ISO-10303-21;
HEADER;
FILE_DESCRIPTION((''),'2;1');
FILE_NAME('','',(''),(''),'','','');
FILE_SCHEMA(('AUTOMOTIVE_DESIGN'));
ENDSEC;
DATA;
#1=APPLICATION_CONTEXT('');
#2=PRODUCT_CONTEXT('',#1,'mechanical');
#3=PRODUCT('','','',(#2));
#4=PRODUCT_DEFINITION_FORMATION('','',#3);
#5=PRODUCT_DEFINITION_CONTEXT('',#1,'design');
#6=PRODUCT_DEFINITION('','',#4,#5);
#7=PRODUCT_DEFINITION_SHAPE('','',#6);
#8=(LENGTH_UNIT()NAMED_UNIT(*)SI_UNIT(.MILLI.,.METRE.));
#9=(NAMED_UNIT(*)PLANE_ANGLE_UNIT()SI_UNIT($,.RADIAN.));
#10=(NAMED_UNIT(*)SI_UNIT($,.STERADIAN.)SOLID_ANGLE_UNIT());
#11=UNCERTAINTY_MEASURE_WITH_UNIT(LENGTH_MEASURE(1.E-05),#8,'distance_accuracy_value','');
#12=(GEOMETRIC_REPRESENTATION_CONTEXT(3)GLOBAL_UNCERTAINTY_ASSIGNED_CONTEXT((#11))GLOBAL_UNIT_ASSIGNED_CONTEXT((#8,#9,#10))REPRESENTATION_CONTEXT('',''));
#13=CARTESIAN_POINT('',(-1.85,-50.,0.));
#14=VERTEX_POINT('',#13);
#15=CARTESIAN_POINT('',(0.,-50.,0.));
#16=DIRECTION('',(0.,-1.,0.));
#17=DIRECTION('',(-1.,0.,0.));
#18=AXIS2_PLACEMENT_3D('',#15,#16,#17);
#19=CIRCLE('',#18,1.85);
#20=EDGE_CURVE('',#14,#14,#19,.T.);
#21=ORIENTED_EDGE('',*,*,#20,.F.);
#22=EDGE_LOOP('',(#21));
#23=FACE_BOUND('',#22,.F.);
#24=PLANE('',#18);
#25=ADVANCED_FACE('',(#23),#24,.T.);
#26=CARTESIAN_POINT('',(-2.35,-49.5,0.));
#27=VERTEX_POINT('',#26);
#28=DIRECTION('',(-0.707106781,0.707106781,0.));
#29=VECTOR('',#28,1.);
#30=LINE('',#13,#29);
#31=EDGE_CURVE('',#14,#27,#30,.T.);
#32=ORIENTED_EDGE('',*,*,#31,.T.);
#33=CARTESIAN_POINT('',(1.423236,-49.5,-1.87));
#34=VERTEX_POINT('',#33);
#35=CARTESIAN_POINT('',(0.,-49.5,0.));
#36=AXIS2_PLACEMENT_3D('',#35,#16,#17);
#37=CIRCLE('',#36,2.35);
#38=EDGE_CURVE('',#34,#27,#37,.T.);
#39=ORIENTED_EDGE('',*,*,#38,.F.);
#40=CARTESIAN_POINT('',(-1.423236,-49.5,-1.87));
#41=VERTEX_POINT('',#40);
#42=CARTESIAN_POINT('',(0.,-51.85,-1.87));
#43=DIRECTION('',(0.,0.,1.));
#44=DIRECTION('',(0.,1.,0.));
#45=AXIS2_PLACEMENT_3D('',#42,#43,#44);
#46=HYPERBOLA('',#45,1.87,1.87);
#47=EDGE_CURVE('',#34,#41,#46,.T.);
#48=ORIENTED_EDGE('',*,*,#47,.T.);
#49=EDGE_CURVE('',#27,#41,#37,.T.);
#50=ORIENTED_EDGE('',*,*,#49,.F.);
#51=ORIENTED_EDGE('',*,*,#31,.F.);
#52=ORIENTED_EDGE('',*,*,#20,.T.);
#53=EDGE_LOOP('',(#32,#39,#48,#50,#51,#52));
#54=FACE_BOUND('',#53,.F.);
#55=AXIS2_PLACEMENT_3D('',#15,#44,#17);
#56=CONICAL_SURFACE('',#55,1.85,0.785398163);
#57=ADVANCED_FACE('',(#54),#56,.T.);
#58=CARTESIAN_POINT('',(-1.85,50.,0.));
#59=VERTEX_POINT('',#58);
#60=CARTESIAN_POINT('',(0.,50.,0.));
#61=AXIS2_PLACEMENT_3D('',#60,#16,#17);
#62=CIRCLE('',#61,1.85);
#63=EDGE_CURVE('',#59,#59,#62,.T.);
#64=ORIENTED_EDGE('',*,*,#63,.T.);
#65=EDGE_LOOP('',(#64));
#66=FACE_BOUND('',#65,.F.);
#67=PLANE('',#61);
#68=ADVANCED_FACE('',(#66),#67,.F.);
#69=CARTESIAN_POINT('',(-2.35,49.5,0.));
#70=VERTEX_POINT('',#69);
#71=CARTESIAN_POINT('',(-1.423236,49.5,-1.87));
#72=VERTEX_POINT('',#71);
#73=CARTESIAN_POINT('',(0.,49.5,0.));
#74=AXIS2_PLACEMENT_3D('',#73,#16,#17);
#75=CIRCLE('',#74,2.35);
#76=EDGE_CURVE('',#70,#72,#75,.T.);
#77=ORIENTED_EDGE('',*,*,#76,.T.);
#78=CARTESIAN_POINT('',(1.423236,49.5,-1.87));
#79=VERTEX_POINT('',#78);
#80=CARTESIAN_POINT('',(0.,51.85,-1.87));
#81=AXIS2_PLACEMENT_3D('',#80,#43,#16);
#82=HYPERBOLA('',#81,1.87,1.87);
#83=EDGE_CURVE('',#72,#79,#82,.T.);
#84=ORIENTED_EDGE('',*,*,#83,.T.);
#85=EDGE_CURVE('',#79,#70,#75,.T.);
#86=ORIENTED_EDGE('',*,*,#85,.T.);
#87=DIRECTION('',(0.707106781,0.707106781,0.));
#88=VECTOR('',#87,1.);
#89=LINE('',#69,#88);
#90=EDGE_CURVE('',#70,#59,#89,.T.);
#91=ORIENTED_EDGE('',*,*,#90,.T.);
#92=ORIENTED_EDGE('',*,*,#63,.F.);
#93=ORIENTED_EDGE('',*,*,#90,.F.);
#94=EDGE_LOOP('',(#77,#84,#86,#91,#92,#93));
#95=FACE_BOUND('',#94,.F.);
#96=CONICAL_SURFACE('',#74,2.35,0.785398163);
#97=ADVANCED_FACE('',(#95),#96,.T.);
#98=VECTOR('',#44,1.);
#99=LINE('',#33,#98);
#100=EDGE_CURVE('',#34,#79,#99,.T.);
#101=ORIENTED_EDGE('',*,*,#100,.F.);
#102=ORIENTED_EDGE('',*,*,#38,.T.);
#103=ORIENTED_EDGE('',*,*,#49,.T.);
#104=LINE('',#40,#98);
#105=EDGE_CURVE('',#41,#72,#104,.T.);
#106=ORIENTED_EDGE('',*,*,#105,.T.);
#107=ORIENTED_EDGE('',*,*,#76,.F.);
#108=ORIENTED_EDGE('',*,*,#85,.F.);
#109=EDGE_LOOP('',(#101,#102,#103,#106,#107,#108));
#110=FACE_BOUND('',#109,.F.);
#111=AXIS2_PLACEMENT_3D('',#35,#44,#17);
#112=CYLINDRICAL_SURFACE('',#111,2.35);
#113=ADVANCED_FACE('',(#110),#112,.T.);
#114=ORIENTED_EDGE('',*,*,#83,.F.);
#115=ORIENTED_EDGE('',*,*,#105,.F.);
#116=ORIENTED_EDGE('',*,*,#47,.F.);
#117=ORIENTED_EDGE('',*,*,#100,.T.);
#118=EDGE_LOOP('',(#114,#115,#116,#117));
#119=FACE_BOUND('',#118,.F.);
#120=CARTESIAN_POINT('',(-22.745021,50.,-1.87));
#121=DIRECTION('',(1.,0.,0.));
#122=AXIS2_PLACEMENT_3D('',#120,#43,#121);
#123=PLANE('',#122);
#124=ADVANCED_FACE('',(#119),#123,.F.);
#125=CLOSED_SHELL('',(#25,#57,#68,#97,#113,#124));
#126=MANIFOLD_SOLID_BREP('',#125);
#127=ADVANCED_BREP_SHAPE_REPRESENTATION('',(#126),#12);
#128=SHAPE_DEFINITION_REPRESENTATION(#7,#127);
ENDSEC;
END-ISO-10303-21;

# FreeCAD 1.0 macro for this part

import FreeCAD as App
import Part
import Sketcher
from FreeCAD import Vector
Q = App.Units.Quantity


def add_polygon(sketch, points):
    """Adds a closed chain of lines whose ends are joined by coincident constraints."""
    first, n = sketch.GeometryCount, len(points)
    for a, b in zip(points, points[1:] + points[:1]):
        sketch.addGeometry(Part.LineSegment(App.Vector(*a, 0), App.Vector(*b, 0)), False)
    for i in range(n):
        sketch.addConstraint(Sketcher.Constraint("Coincident", first + i, 2, first + (i + 1) % n, 1))

doc = App.newDocument("Part")
body = doc.addObject("PartDesign::Body", "Body")

sketch1 = body.newObject("Sketcher::SketchObject", "Sketch")
sketch1.AttachmentSupport = (doc.getObject("XY_Plane"), [""])
sketch1.MapMode = "FlatFace"
add_polygon(sketch1, [(-1.9, -50), (0, -50), (0, 50), (-1.9, 50), (-2.4, 49.5), (-2.4, -49.5)])
sketch1.addConstraint(Sketcher.Constraint("Horizontal", 0))
sketch1.addConstraint(Sketcher.Constraint("Vertical", 1))
sketch1.addConstraint(Sketcher.Constraint("Horizontal", 2))
sketch1.addConstraint(Sketcher.Constraint("Vertical", 4))
sketch1.addConstraint(Sketcher.Constraint("Symmetric", 0, 2, 1, 2, -1, 1))
sketch1.addConstraint(Sketcher.Constraint("Perpendicular", 3, 5))
sketch1.addConstraint(Sketcher.Constraint("Vertical", 2, 2, 5, 2))
sketch1.addConstraint(Sketcher.Constraint("Equal", 3, 5))
sketch1.addConstraint(Sketcher.Constraint("DistanceY", 1, 1, 1, 2, Q("100 mm")))
sketch1.addConstraint(Sketcher.Constraint("DistanceY", 4, 2, 4, 1, Q("99 mm")))
sketch1.addConstraint(Sketcher.Constraint("DistanceX", 0, 1, 0, 2, Q("1.85 mm")))
revolution = body.newObject("PartDesign::Revolution", "Revolution")
revolution.Profile = sketch1
revolution.ReferenceAxis = (sketch1, ["V_Axis"])
revolution.Angle = 360

sketch2 = body.newObject("Sketcher::SketchObject", "Sketch001")
sketch2.AttachmentSupport = (doc.getObject("XZ_Plane"), [""])
sketch2.MapMode = "FlatFace"
sketch2.AttachmentOffset = App.Placement(Vector(0, 0, -50), App.Rotation())
add_polygon(sketch2, [(-23, -2), (23, -2), (23, -45), (-23, -45)])
sketch2.addConstraint(Sketcher.Constraint("Horizontal", 0))
sketch2.addConstraint(Sketcher.Constraint("Vertical", 1))
sketch2.addConstraint(Sketcher.Constraint("Horizontal", 2))
sketch2.addConstraint(Sketcher.Constraint("Vertical", 3))
sketch2.addConstraint(Sketcher.Constraint("DistanceY", 0, 2, -1, 1, Q("1.87 mm")))
sketch2.addConstraint(Sketcher.Constraint("DistanceY", 1, 2, 1, 1, Q("42.643571 mm")))
sketch2.addConstraint(Sketcher.Constraint("DistanceX", 0, 1, 0, 2, Q("45.490043 mm")))
sketch2.addConstraint(Sketcher.Constraint("DistanceX", -1, 1, 0, 2, Q("22.745021 mm")))
pocket1 = body.newObject("PartDesign::Pocket", "Pocket")
pocket1.Profile = sketch2
pocket1.Type = "ThroughAll"
pocket1.Reversed = True

doc.recompute()
